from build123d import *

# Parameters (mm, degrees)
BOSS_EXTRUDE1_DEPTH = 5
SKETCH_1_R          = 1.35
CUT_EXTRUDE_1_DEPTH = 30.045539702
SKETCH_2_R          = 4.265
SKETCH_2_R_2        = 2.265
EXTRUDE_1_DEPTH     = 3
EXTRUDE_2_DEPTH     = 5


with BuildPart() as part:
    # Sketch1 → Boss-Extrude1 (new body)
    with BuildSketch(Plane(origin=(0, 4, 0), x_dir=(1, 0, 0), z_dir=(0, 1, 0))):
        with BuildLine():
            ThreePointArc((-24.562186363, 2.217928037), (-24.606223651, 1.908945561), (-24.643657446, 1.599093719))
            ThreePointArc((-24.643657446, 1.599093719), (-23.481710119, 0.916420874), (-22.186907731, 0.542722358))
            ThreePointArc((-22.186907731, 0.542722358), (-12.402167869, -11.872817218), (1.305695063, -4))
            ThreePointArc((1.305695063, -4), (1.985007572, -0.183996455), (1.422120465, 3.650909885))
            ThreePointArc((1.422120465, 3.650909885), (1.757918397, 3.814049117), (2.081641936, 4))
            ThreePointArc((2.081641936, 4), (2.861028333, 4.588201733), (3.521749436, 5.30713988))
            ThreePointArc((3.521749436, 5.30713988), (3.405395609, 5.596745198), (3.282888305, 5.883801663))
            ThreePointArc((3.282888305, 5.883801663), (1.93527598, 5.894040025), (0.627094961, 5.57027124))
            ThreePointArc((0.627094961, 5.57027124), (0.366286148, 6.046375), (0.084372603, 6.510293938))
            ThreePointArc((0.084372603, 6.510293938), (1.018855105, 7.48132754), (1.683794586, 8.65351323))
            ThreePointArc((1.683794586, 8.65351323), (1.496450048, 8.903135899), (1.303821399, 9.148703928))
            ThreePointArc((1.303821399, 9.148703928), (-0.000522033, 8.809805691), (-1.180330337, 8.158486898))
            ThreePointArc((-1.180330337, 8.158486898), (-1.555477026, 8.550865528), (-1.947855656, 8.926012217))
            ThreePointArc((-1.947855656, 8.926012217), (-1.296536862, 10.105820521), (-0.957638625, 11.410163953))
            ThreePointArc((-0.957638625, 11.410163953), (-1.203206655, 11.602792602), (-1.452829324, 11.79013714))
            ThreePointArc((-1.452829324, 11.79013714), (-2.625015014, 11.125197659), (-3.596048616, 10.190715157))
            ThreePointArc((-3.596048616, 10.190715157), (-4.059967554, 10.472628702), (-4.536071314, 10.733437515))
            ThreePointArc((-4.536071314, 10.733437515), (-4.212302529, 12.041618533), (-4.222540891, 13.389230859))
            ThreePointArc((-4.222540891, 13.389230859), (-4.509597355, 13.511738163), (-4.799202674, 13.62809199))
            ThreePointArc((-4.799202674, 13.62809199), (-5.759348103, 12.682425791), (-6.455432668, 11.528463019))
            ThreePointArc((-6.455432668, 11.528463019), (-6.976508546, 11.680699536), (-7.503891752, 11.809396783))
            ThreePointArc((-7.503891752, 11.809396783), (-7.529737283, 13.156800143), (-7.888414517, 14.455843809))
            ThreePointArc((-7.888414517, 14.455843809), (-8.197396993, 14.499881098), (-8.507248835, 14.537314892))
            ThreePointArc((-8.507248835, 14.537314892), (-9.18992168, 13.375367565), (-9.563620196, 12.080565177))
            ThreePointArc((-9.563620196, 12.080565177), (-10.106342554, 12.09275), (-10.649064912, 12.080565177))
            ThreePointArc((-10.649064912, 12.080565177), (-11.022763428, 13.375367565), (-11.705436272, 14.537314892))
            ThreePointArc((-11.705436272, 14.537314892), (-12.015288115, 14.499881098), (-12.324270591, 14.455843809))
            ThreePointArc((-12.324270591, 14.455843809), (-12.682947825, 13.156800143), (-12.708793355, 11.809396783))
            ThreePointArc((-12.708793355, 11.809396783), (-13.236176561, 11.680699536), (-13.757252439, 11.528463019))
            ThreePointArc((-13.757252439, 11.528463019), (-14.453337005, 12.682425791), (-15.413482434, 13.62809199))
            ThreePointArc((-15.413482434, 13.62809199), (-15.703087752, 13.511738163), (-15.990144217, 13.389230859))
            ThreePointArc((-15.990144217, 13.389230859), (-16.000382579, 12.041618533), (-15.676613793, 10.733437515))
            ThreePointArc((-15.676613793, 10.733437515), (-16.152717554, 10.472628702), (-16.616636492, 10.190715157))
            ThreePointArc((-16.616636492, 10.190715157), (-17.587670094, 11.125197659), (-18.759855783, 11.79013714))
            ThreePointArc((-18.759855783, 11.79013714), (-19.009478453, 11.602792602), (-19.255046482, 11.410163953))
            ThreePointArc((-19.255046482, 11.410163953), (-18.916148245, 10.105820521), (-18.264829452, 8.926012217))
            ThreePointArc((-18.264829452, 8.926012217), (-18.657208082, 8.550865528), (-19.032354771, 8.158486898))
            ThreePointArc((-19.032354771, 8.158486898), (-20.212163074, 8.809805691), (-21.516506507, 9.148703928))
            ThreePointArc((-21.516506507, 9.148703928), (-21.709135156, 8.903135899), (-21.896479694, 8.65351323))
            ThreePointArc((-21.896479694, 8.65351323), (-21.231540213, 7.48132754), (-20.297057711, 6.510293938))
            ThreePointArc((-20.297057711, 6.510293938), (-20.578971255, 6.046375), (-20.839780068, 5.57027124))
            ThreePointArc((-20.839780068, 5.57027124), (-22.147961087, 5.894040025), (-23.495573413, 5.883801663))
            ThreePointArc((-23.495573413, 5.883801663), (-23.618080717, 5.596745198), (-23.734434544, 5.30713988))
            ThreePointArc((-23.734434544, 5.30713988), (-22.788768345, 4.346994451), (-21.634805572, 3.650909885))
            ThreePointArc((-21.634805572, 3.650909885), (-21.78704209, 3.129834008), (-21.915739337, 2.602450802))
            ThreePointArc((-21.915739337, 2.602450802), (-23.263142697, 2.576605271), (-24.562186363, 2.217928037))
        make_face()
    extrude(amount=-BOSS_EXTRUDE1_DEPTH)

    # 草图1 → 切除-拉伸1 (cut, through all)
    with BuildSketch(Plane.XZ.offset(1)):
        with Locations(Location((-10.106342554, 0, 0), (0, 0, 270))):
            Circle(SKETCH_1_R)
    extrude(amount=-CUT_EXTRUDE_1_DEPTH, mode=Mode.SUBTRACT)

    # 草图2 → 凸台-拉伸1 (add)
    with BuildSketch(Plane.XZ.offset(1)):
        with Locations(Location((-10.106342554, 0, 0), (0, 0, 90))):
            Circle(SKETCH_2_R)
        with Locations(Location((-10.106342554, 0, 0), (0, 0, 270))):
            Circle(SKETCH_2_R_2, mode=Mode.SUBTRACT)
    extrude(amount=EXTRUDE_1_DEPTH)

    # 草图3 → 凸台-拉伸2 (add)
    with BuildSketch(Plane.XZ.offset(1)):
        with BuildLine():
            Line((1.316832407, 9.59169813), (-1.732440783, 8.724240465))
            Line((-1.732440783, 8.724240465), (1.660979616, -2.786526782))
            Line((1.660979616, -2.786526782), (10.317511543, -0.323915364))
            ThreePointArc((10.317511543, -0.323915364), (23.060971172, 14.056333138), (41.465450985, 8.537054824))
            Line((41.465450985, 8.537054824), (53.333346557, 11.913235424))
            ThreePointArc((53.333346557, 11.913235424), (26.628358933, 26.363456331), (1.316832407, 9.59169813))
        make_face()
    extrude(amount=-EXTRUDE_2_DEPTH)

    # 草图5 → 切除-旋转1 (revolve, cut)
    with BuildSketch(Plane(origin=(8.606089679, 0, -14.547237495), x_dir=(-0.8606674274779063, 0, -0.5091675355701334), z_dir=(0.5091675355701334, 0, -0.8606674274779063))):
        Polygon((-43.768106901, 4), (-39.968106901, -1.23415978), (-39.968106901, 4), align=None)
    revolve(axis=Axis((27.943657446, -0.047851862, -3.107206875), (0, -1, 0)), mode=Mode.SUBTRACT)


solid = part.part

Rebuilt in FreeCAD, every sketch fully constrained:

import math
import FreeCAD as App
import Part
import Sketcher

V = App.Vector
Q = App.Units.Quantity


def add_polygon(sketch, points):
    """Adds a closed chain of lines whose ends are joined by coincident constraints."""
    first, n = sketch.GeometryCount, len(points)
    for a, b in zip(points, points[1:] + points[:1]):
        sketch.addGeometry(Part.LineSegment(App.Vector(*a, 0), App.Vector(*b, 0)), False)
    for i in range(n):
        sketch.addConstraint(Sketcher.Constraint("Coincident", first + i, 2, first + (i + 1) % n, 1))

doc = App.newDocument("Part")
body = doc.addObject("PartDesign::Body", "Body")

sketch1 = body.newObject("Sketcher::SketchObject", "Sketch")
sketch1.AttachmentSupport = (doc.getObject("XZ_Plane"), [""])
sketch1.MapMode = "FlatFace"
sketch1.AttachmentOffset = App.Placement(V(0, 0, -4), App.Rotation())
sketch1.addGeometry([
    Part.ArcOfCircle(Part.Circle(V(-10.10634, 0, 0), V(0, 0, 1), 14.625003), math.radians(-173.722744), math.radians(-171.277256)),
    Part.ArcOfCircle(Part.Circle(V(-21.348613, -5.877257, 0), V(0, 0, 1), 5.4), math.radians(98.930701), math.radians(127.603488)),
    Part.ArcOfCircle(Part.Circle(V(-10.106343, 0, 0), V(0, 0, 1), 12.09275), math.radians(19.315925), math.radians(182.572297)),
    Part.ArcOfCircle(Part.Circle(V(-10.106343, 0, 0), V(0, 0, 1), 12.09275), math.radians(-17.572297), math.radians(19.315925)),
    Part.ArcOfCircle(Part.Circle(V(-0.768289, -8.586708, 0), V(0, 0, 1), 5.4), math.radians(58.14543), math.radians(66.069299)),
    Part.ArcOfCircle(Part.Circle(V(-0.768289, -8.586708, 0), V(0, 0, 1), 5.4), math.radians(37.396512), math.radians(58.14543)),
    Part.ArcOfCircle(Part.Circle(V(-10.106343, 0, 0), V(0, 0, 1), 14.625), math.radians(-23.722744), math.radians(-21.277256)),
    Part.ArcOfCircle(Part.Circle(V(2.568378, -0.531281, 0), V(0, 0, 1), 5.4), math.radians(-111.069299), math.radians(-82.396512)),
    Part.ArcOfCircle(Part.Circle(V(-10.106343, 0, 0), V(0, 0, 1), 12.09275), math.radians(-32.572297), math.radians(-27.427703)),
    Part.ArcOfCircle(Part.Circle(V(-3.308879, -10.710989, 0), V(0, 0, 1), 5.4), math.radians(22.396512), math.radians(51.069299)),
    Part.ArcOfCircle(Part.Circle(V(-10.106342, 0, 0), V(0, 0, 1), 14.625), math.radians(-38.722744), math.radians(-36.277256)),
    Part.ArcOfCircle(Part.Circle(V(1.998992, -3.793637, 0), V(0, 0, 1), 5.4), math.radians(-126.069299), math.radians(-97.396512)),
    Part.ArcOfCircle(Part.Circle(V(-10.106343, 0, 0), V(0, 0, 1), 12.09275), math.radians(-47.572297), math.radians(-42.427703)),
    Part.ArcOfCircle(Part.Circle(V(-6.312705, -12.105334, 0), V(0, 0, 1), 5.4), math.radians(7.396512), math.radians(36.069299)),
    Part.ArcOfCircle(Part.Circle(V(-10.106343, 0.000001, 0), V(0, 0, 1), 14.625001), math.radians(-53.722744), math.radians(-51.277256)),
    Part.ArcOfCircle(Part.Circle(V(0.604647, -6.797463, 0), V(0, 0, 1), 5.4), math.radians(-141.069299), math.radians(-112.396512)),
    Part.ArcOfCircle(Part.Circle(V(-10.106343, 0, 0), V(0, 0, 1), 12.09275), math.radians(-62.572297), math.radians(-57.427703)),
    Part.ArcOfCircle(Part.Circle(V(-9.575061, -12.674721, 0), V(0, 0, 1), 5.4), math.radians(-7.603488), math.radians(21.069299)),
    Part.ArcOfCircle(Part.Circle(V(-10.106342, -0.000001, 0), V(0, 0, 1), 14.624999), math.radians(-68.722744), math.radians(-66.277256)),
    Part.ArcOfCircle(Part.Circle(V(-1.519634, -9.338053, 0), V(0, 0, 1), 5.4), math.radians(-156.069299), math.radians(-127.396512)),
    Part.ArcOfCircle(Part.Circle(V(-10.106343, 0, 0), V(0, 0, 1), 12.09275), math.radians(-77.572297), math.radians(-72.427703)),
    Part.ArcOfCircle(Part.Circle(V(-12.873623, -12.380346, 0), V(0, 0, 1), 5.4), math.radians(-22.603488), math.radians(6.069299)),
    Part.ArcOfCircle(Part.Circle(V(-10.106342, -0.000002, 0), V(0, 0, 1), 14.624998), math.radians(-83.722744), math.radians(-81.277256)),
    Part.ArcOfCircle(Part.Circle(V(-4.229085, -11.242271, 0), V(0, 0, 1), 5.4), math.radians(-171.069299), math.radians(-142.396512)),
    Part.ArcOfCircle(Part.Circle(V(-10.106343, 0, 0), V(0, 0, 1), 12.09275), math.radians(-92.572297), math.radians(-87.427703)),
    Part.ArcOfCircle(Part.Circle(V(-15.9836, -11.242271, 0), V(0, 0, 1), 5.4), math.radians(-37.603488), math.radians(-8.930701)),
    Part.ArcOfCircle(Part.Circle(V(-10.106343, -0.000002, 0), V(0, 0, 1), 14.624998), math.radians(-98.722744), math.radians(-96.277256)),
    Part.ArcOfCircle(Part.Circle(V(-7.339062, -12.380346, 0), V(0, 0, 1), 5.4), math.radians(173.930701), math.radians(202.603488)),
    Part.ArcOfCircle(Part.Circle(V(-10.106343, 0, 0), V(0, 0, 1), 12.09275), math.radians(-107.572297), math.radians(-102.427703)),
    Part.ArcOfCircle(Part.Circle(V(-18.693051, -9.338053, 0), V(0, 0, 1), 5.4), math.radians(-52.603488), math.radians(-23.930701)),
    Part.ArcOfCircle(Part.Circle(V(-10.106342, 0, 0), V(0, 0, 1), 14.625), math.radians(-113.722744), math.radians(-111.277256)),
    Part.ArcOfCircle(Part.Circle(V(-10.637624, -12.674721, 0), V(0, 0, 1), 5.4), math.radians(158.930701), math.radians(187.603488)),
    Part.ArcOfCircle(Part.Circle(V(-10.106343, 0, 0), V(0, 0, 1), 12.09275), math.radians(-122.572297), math.radians(-117.427703)),
    Part.ArcOfCircle(Part.Circle(V(-20.817332, -6.797463, 0), V(0, 0, 1), 5.4), math.radians(-67.603488), math.radians(-38.930701)),
    Part.ArcOfCircle(Part.Circle(V(-10.106344, -0.000001, 0), V(0, 0, 1), 14.624998), math.radians(-128.722744), math.radians(-126.277256)),
    Part.ArcOfCircle(Part.Circle(V(-13.89998, -12.105334, 0), V(0, 0, 1), 5.4), math.radians(143.930701), math.radians(172.603488)),
    Part.ArcOfCircle(Part.Circle(V(-10.106342, 0, 0), V(0, 0, 1), 12.09275), math.radians(-137.572297), math.radians(-132.427703)),
    Part.ArcOfCircle(Part.Circle(V(-22.211677, -3.793637, 0), V(0, 0, 1), 5.4), math.radians(-82.603488), math.radians(-53.930701)),
    Part.ArcOfCircle(Part.Circle(V(-10.106343, 0, 0), V(0, 0, 1), 14.625), math.radians(-143.722744), math.radians(-141.277256)),
    Part.ArcOfCircle(Part.Circle(V(-16.903806, -10.710989, 0), V(0, 0, 1), 5.4), math.radians(128.930701), math.radians(157.603488)),
    Part.ArcOfCircle(Part.Circle(V(-10.106342, 0, 0), V(0, 0, 1), 12.092751), math.radians(-152.572297), math.radians(-147.427703)),
    Part.ArcOfCircle(Part.Circle(V(-22.781063, -0.531281, 0), V(0, 0, 1), 5.4), math.radians(-97.603488), math.radians(-68.930701)),
    Part.ArcOfCircle(Part.Circle(V(-10.106342, 0, 0), V(0, 0, 1), 14.625), math.radians(-158.722744), math.radians(-156.277256)),
    Part.ArcOfCircle(Part.Circle(V(-19.444396, -8.586708, 0), V(0, 0, 1), 5.4), math.radians(113.930701), math.radians(142.603488)),
    Part.ArcOfCircle(Part.Circle(V(-10.106343, 0, 0), V(0, 0, 1), 12.092749), math.radians(-167.572297), math.radians(-162.427702)),
    Part.ArcOfCircle(Part.Circle(V(-22.486688, 2.767281, 0), V(0, 0, 1), 5.4), math.radians(-112.603488), math.radians(-83.930701)),
], False)
sketch1.addConstraint([
    Sketcher.Constraint("Coincident", 0, 1, 1, 2),
    Sketcher.Constraint("Coincident", 1, 1, 2, 2),
    Sketcher.Constraint("Coincident", 2, 1, 3, 2),
    Sketcher.Constraint("Coincident", 3, 1, 4, 2),
    Sketcher.Constraint("Coincident", 4, 1, 5, 2),
    Sketcher.Constraint("Coincident", 5, 1, 6, 2),
    Sketcher.Constraint("Coincident", 6, 1, 7, 2),
    Sketcher.Constraint("Coincident", 7, 1, 8, 2),
    Sketcher.Constraint("Coincident", 8, 1, 9, 2),
    Sketcher.Constraint("Coincident", 9, 1, 10, 2),
    Sketcher.Constraint("Coincident", 10, 1, 11, 2),
    Sketcher.Constraint("Coincident", 11, 1, 12, 2),
    Sketcher.Constraint("Coincident", 12, 1, 13, 2),
    Sketcher.Constraint("Coincident", 13, 1, 14, 2),
    Sketcher.Constraint("Coincident", 14, 1, 15, 2),
    Sketcher.Constraint("Coincident", 15, 1, 16, 2),
    Sketcher.Constraint("Coincident", 16, 1, 17, 2),
    Sketcher.Constraint("Coincident", 17, 1, 18, 2),
    Sketcher.Constraint("Coincident", 18, 1, 19, 2),
    Sketcher.Constraint("Coincident", 19, 1, 20, 2),
    Sketcher.Constraint("Coincident", 20, 1, 21, 2),
    Sketcher.Constraint("Coincident", 21, 1, 22, 2),
    Sketcher.Constraint("Coincident", 22, 1, 23, 2),
    Sketcher.Constraint("Coincident", 23, 1, 24, 2),
    Sketcher.Constraint("Coincident", 24, 1, 25, 2),
    Sketcher.Constraint("Coincident", 25, 1, 26, 2),
    Sketcher.Constraint("Coincident", 26, 1, 27, 2),
    Sketcher.Constraint("Coincident", 27, 1, 28, 2),
    Sketcher.Constraint("Coincident", 28, 1, 29, 2),
    Sketcher.Constraint("Coincident", 29, 1, 30, 2),
    Sketcher.Constraint("Coincident", 30, 1, 31, 2),
    Sketcher.Constraint("Coincident", 31, 1, 32, 2),
    Sketcher.Constraint("Coincident", 32, 1, 33, 2),
    Sketcher.Constraint("Coincident", 33, 1, 34, 2),
    Sketcher.Constraint("Coincident", 34, 1, 35, 2),
    Sketcher.Constraint("Coincident", 35, 1, 36, 2),
    Sketcher.Constraint("Coincident", 36, 1, 37, 2),
    Sketcher.Constraint("Coincident", 37, 1, 38, 2),
    Sketcher.Constraint("Coincident", 38, 1, 39, 2),
    Sketcher.Constraint("Coincident", 39, 1, 40, 2),
    Sketcher.Constraint("Coincident", 40, 1, 41, 2),
    Sketcher.Constraint("Coincident", 41, 1, 42, 2),
    Sketcher.Constraint("Coincident", 42, 1, 43, 2),
    Sketcher.Constraint("Coincident", 43, 1, 44, 2),
    Sketcher.Constraint("Coincident", 44, 1, 45, 2),
    Sketcher.Constraint("Coincident", 45, 1, 0, 2),
    Sketcher.Constraint("Coincident", 2, 3, 0, 3),
    Sketcher.Constraint("Coincident", 3, 3, 0, 3),
    Sketcher.Constraint("Coincident", 5, 3, 4, 3),
    Sketcher.Constraint("Coincident", 6, 3, 0, 3),
    Sketcher.Constraint("Coincident", 8, 3, 0, 3),
    Sketcher.Constraint("Coincident", 10, 3, 0, 3),
    Sketcher.Constraint("Coincident", 12, 3, 0, 3),
    Sketcher.Constraint("Coincident", 14, 3, 0, 3),
    Sketcher.Constraint("Coincident", 16, 3, 0, 3),
    Sketcher.Constraint("Coincident", 18, 3, 0, 3),
    Sketcher.Constraint("Coincident", 20, 3, 0, 3),
    Sketcher.Constraint("Coincident", 22, 3, 0, 3),
    Sketcher.Constraint("Coincident", 24, 3, 0, 3),
    Sketcher.Constraint("Coincident", 26, 3, 0, 3),
    Sketcher.Constraint("Coincident", 28, 3, 0, 3),
    Sketcher.Constraint("Coincident", 30, 3, 0, 3),
    Sketcher.Constraint("Coincident", 32, 3, 0, 3),
    Sketcher.Constraint("Coincident", 34, 3, 0, 3),
    Sketcher.Constraint("Coincident", 36, 3, 0, 3),
    Sketcher.Constraint("Coincident", 38, 3, 0, 3),
    Sketcher.Constraint("Coincident", 40, 3, 0, 3),
    Sketcher.Constraint("Coincident", 42, 3, 0, 3),
    Sketcher.Constraint("Coincident", 44, 3, 0, 3),
    Sketcher.Constraint("PointOnObject", 0, 3, -1),
    Sketcher.Constraint("Radius", 1, Q("5.4 mm")),
    Sketcher.Constraint("Radius", 4, Q("5.4 mm")),
    Sketcher.Constraint("Radius", 7, Q("5.4 mm")),
    Sketcher.Constraint("Radius", 9, Q("5.4 mm")),
    Sketcher.Constraint("Radius", 11, Q("5.4 mm")),
    Sketcher.Constraint("Radius", 13, Q("5.4 mm")),
    Sketcher.Constraint("Radius", 15, Q("5.4 mm")),
    Sketcher.Constraint("Radius", 17, Q("5.4 mm")),
    Sketcher.Constraint("Radius", 19, Q("5.4 mm")),
    Sketcher.Constraint("Radius", 21, Q("5.4 mm")),
    Sketcher.Constraint("Radius", 23, Q("5.4 mm")),
    Sketcher.Constraint("Radius", 25, Q("5.4 mm")),
    Sketcher.Constraint("Radius", 27, Q("5.4 mm")),
    Sketcher.Constraint("Radius", 29, Q("5.4 mm")),
    Sketcher.Constraint("Radius", 31, Q("5.4 mm")),
    Sketcher.Constraint("Radius", 33, Q("5.4 mm")),
    Sketcher.Constraint("Radius", 35, Q("5.4 mm")),
    Sketcher.Constraint("Radius", 37, Q("5.4 mm")),
    Sketcher.Constraint("Radius", 39, Q("5.4 mm")),
    Sketcher.Constraint("Radius", 41, Q("5.4 mm")),
    Sketcher.Constraint("Radius", 43, Q("5.4 mm")),
    Sketcher.Constraint("Radius", 45, Q("5.4 mm")),
    Sketcher.Constraint("DistanceY", -1, 1, 2, 1, Q("4 mm")),
    Sketcher.Constraint("DistanceY", 4, 1, -1, 1, Q("4 mm")),
    Sketcher.Constraint("Radius", 6, Q("14.625 mm")),
    Sketcher.Constraint("Radius", 10, Q("14.625 mm")),
    Sketcher.Constraint("Radius", 14, Q("14.625001 mm")),
    Sketcher.Constraint("Radius", 18, Q("14.624999 mm")),
    Sketcher.Constraint("Radius", 22, Q("14.624998 mm")),
    Sketcher.Constraint("Radius", 26, Q("14.624998 mm")),
    Sketcher.Constraint("Radius", 30, Q("14.625 mm")),
    Sketcher.Constraint("Radius", 34, Q("14.624998 mm")),
    Sketcher.Constraint("Radius", 38, Q("14.625 mm")),
    Sketcher.Constraint("Radius", 42, Q("14.625 mm")),
    Sketcher.Constraint("Radius", 2, Q("12.09275 mm")),
    Sketcher.Constraint("Radius", 8, Q("12.09275 mm")),
    Sketcher.Constraint("Radius", 12, Q("12.09275 mm")),
    Sketcher.Constraint("Radius", 16, Q("12.09275 mm")),
    Sketcher.Constraint("Radius", 20, Q("12.09275 mm")),
    Sketcher.Constraint("Radius", 24, Q("12.09275 mm")),
    Sketcher.Constraint("Radius", 28, Q("12.09275 mm")),
    Sketcher.Constraint("Radius", 32, Q("12.09275 mm")),
    Sketcher.Constraint("Radius", 36, Q("12.09275 mm")),
    Sketcher.Constraint("Radius", 40, Q("12.092751 mm")),
    Sketcher.Constraint("Radius", 44, Q("12.092749 mm")),
    Sketcher.Constraint("Radius", 0, Q("14.625003 mm")),
    Sketcher.Constraint("DistanceX", 25, 3, -1, 1, Q("15.9836 mm")),
    Sketcher.Constraint("DistanceY", 6, 1, -1, 1, Q("5.883802 mm")),
    Sketcher.Constraint("DistanceY", 41, 1, -1, 1, Q("5.883802 mm")),
    Sketcher.Constraint("DistanceX", 0, 3, -1, 1, Q("10.10634 mm")),
    Sketcher.Constraint("DistanceX", 4, 3, -1, 1, Q("0.768289 mm")),
    Sketcher.Constraint("DistanceY", 4, 3, -1, 1, Q("8.586708 mm")),
    Sketcher.Constraint("DistanceY", 7, 3, -1, 1, Q("0.531281 mm")),
    Sketcher.Constraint("DistanceX", 9, 3, -1, 1, Q("3.308879 mm")),
    Sketcher.Constraint("DistanceY", 9, 3, -1, 1, Q("10.710989 mm")),
    Sketcher.Constraint("DistanceX", -1, 1, 11, 3, Q("1.998992 mm")),
    Sketcher.Constraint("DistanceX", 17, 3, -1, 1, Q("9.575061 mm")),
    Sketcher.Constraint("DistanceY", 17, 3, -1, 1, Q("12.674721 mm")),
    Sketcher.Constraint("DistanceY", 23, 3, -1, 1, Q("11.242271 mm")),
    Sketcher.Constraint("DistanceY", 25, 3, -1, 1, Q("11.242271 mm")),
    Sketcher.Constraint("DistanceX", 27, 3, -1, 1, Q("7.339062 mm")),
    Sketcher.Constraint("DistanceX", 29, 3, -1, 1, Q("18.693051 mm")),
    Sketcher.Constraint("DistanceY", 31, 3, -1, 1, Q("12.674721 mm")),
    Sketcher.Constraint("DistanceX", 33, 3, -1, 1, Q("20.817332 mm")),
    Sketcher.Constraint("DistanceX", 35, 3, -1, 1, Q("13.89998 mm")),
    Sketcher.Constraint("DistanceY", 39, 3, -1, 1, Q("10.710989 mm")),
    Sketcher.Constraint("DistanceY", 41, 3, -1, 1, Q("0.531281 mm")),
    Sketcher.Constraint("DistanceY", 43, 3, -1, 1, Q("8.586708 mm")),
    Sketcher.Constraint("DistanceX", 45, 3, -1, 1, Q("22.486688 mm")),
    Sketcher.Constraint("DistanceY", -1, 1, 45, 3, Q("2.767281 mm")),
    Sketcher.Constraint("DistanceX", -1, 1, 10, 1, Q("1.303821 mm")),
    Sketcher.Constraint("DistanceX", 13, 1, -1, 1, Q("0.957639 mm")),
    Sketcher.Constraint("DistanceX", 14, 1, -1, 1, Q("1.452829 mm")),
    Sketcher.Constraint("DistanceX", 15, 1, -1, 1, Q("3.596049 mm")),
    Sketcher.Constraint("DistanceY", 18, 1, -1, 1, Q("13.628092 mm")),
    Sketcher.Constraint("DistanceX", 20, 1, -1, 1, Q("7.503892 mm")),
    Sketcher.Constraint("DistanceX", 22, 1, -1, 1, Q("8.507249 mm")),
    Sketcher.Constraint("DistanceX", 26, 1, -1, 1, Q("12.324271 mm")),
    Sketcher.Constraint("DistanceY", 29, 1, -1, 1, Q("13.628092 mm")),
    Sketcher.Constraint("DistanceY", 30, 1, -1, 1, Q("13.389231 mm")),
    Sketcher.Constraint("DistanceX", 35, 1, -1, 1, Q("18.264829 mm")),
    Sketcher.Constraint("DistanceX", 38, 1, -1, 1, Q("21.89648 mm")),
    Sketcher.Constraint("DistanceY", 42, 1, -1, 1, Q("5.30714 mm")),
    Sketcher.Constraint("DistanceX", 1, 3, -1, 1, Q("21.348613 mm")),
    Sketcher.Constraint("DistanceY", 1, 3, -1, 1, Q("5.877257 mm")),
    Sketcher.Constraint("DistanceX", 13, 3, -1, 1, Q("6.312705 mm")),
    Sketcher.Constraint("DistanceX", 19, 3, -1, 1, Q("1.519634 mm")),
    Sketcher.Constraint("DistanceX", 21, 3, -1, 1, Q("12.873623 mm")),
    Sketcher.Constraint("DistanceY", 33, 3, -1, 1, Q("6.797463 mm")),
    Sketcher.Constraint("DistanceX", 37, 3, -1, 1, Q("22.211677 mm")),
    Sketcher.Constraint("DistanceY", 37, 3, -1, 1, Q("3.793637 mm")),
])
pad1 = body.newObject("PartDesign::Pad", "Pad")
pad1.Profile = sketch1
pad1.Length = 5

sketch2 = body.newObject("Sketcher::SketchObject", "Sketch001")
sketch2.AttachmentSupport = (doc.getObject("XZ_Plane"), [""])
sketch2.MapMode = "FlatFace"
sketch2.AttachmentOffset = App.Placement(V(0, 0, 1), App.Rotation())
sketch2.addGeometry(Part.Circle(V(-10.106343, 0, 0), V(0, 0, 1), 1.35), False)
sketch2.addConstraint([
    Sketcher.Constraint("PointOnObject", 0, 3, -1),
    Sketcher.Constraint("Diameter", 0, Q("2.7 mm")),
    Sketcher.Constraint("DistanceX", 0, 3, -1, 1, Q("10.106343 mm")),
])
pocket1 = body.newObject("PartDesign::Pocket", "Pocket")
pocket1.Profile = sketch2
pocket1.Type = "ThroughAll"

sketch3 = body.newObject("Sketcher::SketchObject", "Sketch002")
sketch3.AttachmentSupport = (doc.getObject("XZ_Plane"), [""])
sketch3.MapMode = "FlatFace"
sketch3.AttachmentOffset = App.Placement(V(0, 0, 1), App.Rotation())
sketch3.addGeometry([
    Part.Circle(V(-10.106343, 0, 0), V(0, 0, 1), 4.265),
    Part.Circle(V(-10.106343, 0, 0), V(0, 0, 1), 2.265),
], False)
sketch3.addConstraint([
    Sketcher.Constraint("Coincident", 1, 3, 0, 3),
    Sketcher.Constraint("PointOnObject", 0, 3, -1),
    Sketcher.Constraint("Diameter", 0, Q("8.53 mm")),
    Sketcher.Constraint("Diameter", 1, Q("4.53 mm")),
    Sketcher.Constraint("DistanceX", 0, 3, -1, 1, Q("10.106343 mm")),
])
pad2 = body.newObject("PartDesign::Pad", "Pad001")
pad2.Profile = sketch3
pad2.Length = 3

sketch4 = body.newObject("Sketcher::SketchObject", "Sketch003")
sketch4.AttachmentSupport = (doc.getObject("XZ_Plane"), [""])
sketch4.MapMode = "FlatFace"
sketch4.AttachmentOffset = App.Placement(V(0, 0, 1), App.Rotation())
sketch4.addGeometry([
    Part.LineSegment(V(1.316832, 9.591698, 0), V(-1.732441, 8.72424, 0)),
    Part.LineSegment(V(-1.732441, 8.72424, 0), V(1.66098, -2.786527, 0)),
    Part.LineSegment(V(1.66098, -2.786527, 0), V(10.317512, -0.323915, 0)),
    Part.ArcOfCircle(Part.Circle(V(27.943657, -3.107207, 0), V(0, 0, 1), 17.844543), math.radians(40.733311), math.radians(171.026689)),
    Part.LineSegment(V(41.465451, 8.537055, 0), V(53.333347, 11.913235, 0)),
    Part.ArcOfCircle(Part.Circle(V(27.943657, -3.107207, 0), V(0, 0, 1), 29.5), math.radians(30.608396), math.radians(154.502523)),
], False)
sketch4.addConstraint([
    Sketcher.Constraint("Coincident", 0, 2, 1, 1),
    Sketcher.Constraint("Coincident", 1, 2, 2, 1),
    Sketcher.Constraint("Coincident", 2, 2, 3, 2),
    Sketcher.Constraint("Coincident", 3, 1, 4, 1),
    Sketcher.Constraint("Coincident", 4, 2, 5, 1),
    Sketcher.Constraint("Coincident", 5, 2, 0, 1),
    Sketcher.Constraint("Coincident", 5, 3, 3, 3),
    Sketcher.Constraint("Parallel", 0, 2),
    Sketcher.Constraint("Parallel", 2, 4),
    Sketcher.Constraint("Radius", 5, Q("29.5 mm")),
    Sketcher.Constraint("Distance", 2, Q("9 mm")),
    Sketcher.Constraint("Angle", 0, Q("-164.12 deg")),
    Sketcher.Constraint("Radius", 3, Q("17.844543 mm")),
    Sketcher.Constraint("DistanceY", -1, 1, 5, 2, Q("9.591698 mm")),
    Sketcher.Constraint("DistanceX", 0, 2, 3, 3, Q("29.676098 mm")),
    Sketcher.Constraint("Distance", 0, Q("3.17026 mm")),
    Sketcher.Constraint("Distance", 4, Q("12.338782 mm")),
    Sketcher.Constraint("DistanceX", 0, 2, -1, 1, Q("1.732441 mm")),
    Sketcher.Constraint("DistanceX", -1, 1, 1, 2, Q("1.66098 mm")),
])
pad3 = body.newObject("PartDesign::Pad", "Pad002")
pad3.Profile = sketch4
pad3.Length = 5
pad3.Reversed = True

sketch5 = body.newObject("Sketcher::SketchObject", "Sketch004")
sketch5.Placement = App.Placement(V(8.60609, 0, -14.547237), App.Rotation(V(-0.860667427, 0, -0.509167536), V(0, 1, 0), V(0.509167536, 0, -0.860667427), "ZXY"))
add_polygon(sketch5, [(-43.768107, 4), (-39.968107, -1.23416), (-39.968107, 4)])
sketch5.addGeometry(Part.LineSegment(V(-22.468107, 4, 0), V(-22.468107, -1.23416, 0)), True)
sketch5.addConstraint([
    Sketcher.Constraint("Vertical", 1),
    Sketcher.Constraint("Horizontal", 2),
    Sketcher.Constraint("Vertical", 3),
    Sketcher.Constraint("Horizontal", 2, 2, 3, 1),
    Sketcher.Constraint("Horizontal", 0, 2, 3, 2),
    Sketcher.Constraint("DistanceX", 2, 2, 2, 1, Q("3.8 mm")),
    Sketcher.Constraint("DistanceY", -1, 1, 1, 2, Q("4 mm")),
    Sketcher.Constraint("DistanceX", 1, 2, 3, 1, Q("17.5 mm")),
    Sketcher.Constraint("DistanceY", 1, 1, 1, 2, Q("5.23416 mm")),
    Sketcher.Constraint("DistanceX", 0, 2, -1, 1, Q("39.968107 mm")),
])
groove = body.newObject("PartDesign::Groove", "Groove")
groove.Profile = sketch5
groove.ReferenceAxis = (sketch5, ["Axis0"])
groove.Angle = 360

doc.recompute()
